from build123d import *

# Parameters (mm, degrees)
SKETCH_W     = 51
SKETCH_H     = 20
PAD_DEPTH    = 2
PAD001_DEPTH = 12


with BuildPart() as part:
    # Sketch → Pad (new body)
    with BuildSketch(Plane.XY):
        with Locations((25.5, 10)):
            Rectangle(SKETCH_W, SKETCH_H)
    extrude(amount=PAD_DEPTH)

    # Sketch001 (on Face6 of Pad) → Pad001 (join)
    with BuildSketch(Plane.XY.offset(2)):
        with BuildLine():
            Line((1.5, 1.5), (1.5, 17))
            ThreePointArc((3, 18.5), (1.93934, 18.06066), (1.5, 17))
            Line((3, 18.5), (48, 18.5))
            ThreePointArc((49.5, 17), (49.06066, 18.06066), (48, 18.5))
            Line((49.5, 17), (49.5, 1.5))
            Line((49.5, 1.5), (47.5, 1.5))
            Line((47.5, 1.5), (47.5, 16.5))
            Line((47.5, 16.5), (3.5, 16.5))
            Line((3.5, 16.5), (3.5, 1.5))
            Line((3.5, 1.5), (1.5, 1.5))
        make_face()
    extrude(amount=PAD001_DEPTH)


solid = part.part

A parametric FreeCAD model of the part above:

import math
import FreeCAD as App
import Part
import Sketcher

V = App.Vector
Q = App.Units.Quantity


def add_polygon(sketch, points):
    """Adds a closed chain of lines whose ends are joined by coincident constraints."""
    first, n = sketch.GeometryCount, len(points)
    for a, b in zip(points, points[1:] + points[:1]):
        sketch.addGeometry(Part.LineSegment(App.Vector(*a, 0), App.Vector(*b, 0)), False)
    for i in range(n):
        sketch.addConstraint(Sketcher.Constraint("Coincident", first + i, 2, first + (i + 1) % n, 1))

doc = App.newDocument("Part")
body = doc.addObject("PartDesign::Body", "Body")

sketch1 = doc.addObject("Sketcher::SketchObject", "Sketch")
body.addObject(sketch1)
sketch1.AttachmentSupport = (doc.XY_Plane, [""])
sketch1.MapMode = "FlatFace"
add_polygon(sketch1, [(0, 20), (0, 0), (51, 0), (51, 20)])
sketch1.addConstraint([
    Sketcher.Constraint("Vertical", 0),
    Sketcher.Constraint("Horizontal", 1),
    Sketcher.Constraint("Vertical", 2),
    Sketcher.Constraint("Horizontal", 3),
    Sketcher.Constraint("Coincident", 0, 2, -1, 1),
    Sketcher.Constraint("DistanceX", 1, 1, 1, 2, Q("51 mm")),
    Sketcher.Constraint("DistanceY", 0, 2, 0, 1, Q("20 mm")),
])
pad1 = doc.addObject("PartDesign::Pad", "Pad")
body.addObject(pad1)
pad1.Profile = sketch1
pad1.Length = 2

sketch2 = doc.addObject("Sketcher::SketchObject", "Sketch001")
body.addObject(sketch2)
sketch2.AttachmentSupport = (doc.XY_Plane, [""])
sketch2.MapMode = "FlatFace"
sketch2.AttachmentOffset = App.Placement(V(0, 0, 2), App.Rotation())
sketch2.addGeometry([
    Part.LineSegment(V(1.5, 17, 0), V(1.5, 1.5, 0)),
    Part.LineSegment(V(1.5, 1.5, 0), V(3.5, 1.5, 0)),
    Part.LineSegment(V(3.5, 1.5, 0), V(3.5, 16.5, 0)),
    Part.LineSegment(V(3.5, 16.5, 0), V(47.5, 16.5, 0)),
    Part.LineSegment(V(47.5, 16.5, 0), V(47.5, 1.5, 0)),
    Part.LineSegment(V(47.5, 1.5, 0), V(49.5, 1.5, 0)),
    Part.LineSegment(V(49.5, 1.5, 0), V(49.5, 17, 0)),
    Part.ArcOfCircle(Part.Circle(V(47.999999, 16.999999, 0), V(0, 0, 1), 1.500001), math.radians(0.000022), math.radians(89.999978)),
    Part.LineSegment(V(48, 18.5, 0), V(3, 18.5, 0)),
    Part.ArcOfCircle(Part.Circle(V(3.000001, 16.999999, 0), V(0, 0, 1), 1.500001), math.radians(90.000022), math.radians(179.999978)),
], False)
sketch2.addConstraint([
    Sketcher.Constraint("Coincident", 0, 2, 1, 1),
    Sketcher.Constraint("Coincident", 1, 2, 2, 1),
    Sketcher.Constraint("Coincident", 2, 2, 3, 1),
    Sketcher.Constraint("Coincident", 3, 2, 4, 1),
    Sketcher.Constraint("Coincident", 4, 2, 5, 1),
    Sketcher.Constraint("Coincident", 5, 2, 6, 1),
    Sketcher.Constraint("Tangent", 6, 2, 7, 1),
    Sketcher.Constraint("Tangent", 7, 2, 8, 1),
    Sketcher.Constraint("Tangent", 8, 2, 9, 1),
    Sketcher.Constraint("Tangent", 9, 2, 0, 1),
    Sketcher.Constraint("Vertical", 0),
    Sketcher.Constraint("Horizontal", 1),
    Sketcher.Constraint("Vertical", 2),
    Sketcher.Constraint("Horizontal", 3),
    Sketcher.Constraint("Vertical", 4),
    Sketcher.Constraint("Horizontal", 5),
    Sketcher.Constraint("Vertical", 6),
    Sketcher.Constraint("Horizontal", 8),
    Sketcher.Constraint("Equal", 7, 9),
    Sketcher.Constraint("Horizontal", 1, 2, 4, 2),
    Sketcher.Constraint("Equal", 1, 5),
    Sketcher.Constraint("Radius", 7, Q("1.500001 mm")),
    Sketcher.Constraint("DistanceX", 1, 1, 1, 2, Q("2 mm")),
    Sketcher.Constraint("DistanceX", 3, 1, 3, 2, Q("44 mm")),
    Sketcher.Constraint("DistanceY", 2, 1, 2, 2, Q("15 mm")),
    Sketcher.Constraint("DistanceY", 0, 2, 0, 1, Q("15.5 mm")),
    Sketcher.Constraint("DistanceX", -1, 1, 7, 3, Q("47.999999 mm")),
    Sketcher.Constraint("DistanceY", -1, 1, 7, 3, Q("16.999999 mm")),
])
pad2 = doc.addObject("PartDesign::Pad", "Pad001")
body.addObject(pad2)
pad2.Profile = sketch2
pad2.Length = 12

doc.recompute()
